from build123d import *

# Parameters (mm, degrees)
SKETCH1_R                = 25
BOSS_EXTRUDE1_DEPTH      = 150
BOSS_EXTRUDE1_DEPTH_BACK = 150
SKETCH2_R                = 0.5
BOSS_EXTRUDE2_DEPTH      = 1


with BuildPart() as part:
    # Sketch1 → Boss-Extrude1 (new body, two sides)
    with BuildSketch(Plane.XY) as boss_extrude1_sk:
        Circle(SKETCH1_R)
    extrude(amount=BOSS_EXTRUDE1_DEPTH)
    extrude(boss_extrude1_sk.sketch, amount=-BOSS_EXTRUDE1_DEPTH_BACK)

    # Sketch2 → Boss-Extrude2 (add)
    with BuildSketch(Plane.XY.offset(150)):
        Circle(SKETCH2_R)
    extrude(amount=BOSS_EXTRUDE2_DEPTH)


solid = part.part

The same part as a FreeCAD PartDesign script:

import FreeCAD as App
import Part
import Sketcher

V = App.Vector

doc = App.newDocument("Part")
body = doc.addObject("PartDesign::Body", "Body")

# Sketch on XY plane
sketch1 = body.newObject("Sketcher::SketchObject", "Sketch")
sketch1.AttachmentSupport = (doc.getObject("XY_Plane"), [""])
sketch1.MapMode = "FlatFace"
sketch1.addGeometry(Part.Circle(V(0, 0, 0), V(0, 0, 1), 25), False)
sketch1.addConstraint([
    Sketcher.Constraint("Coincident", 0, 3, -1, 1),
    Sketcher.Constraint("Diameter", 0, 50.0),
])
pad1 = body.newObject("PartDesign::Pad", "Pad")
pad1.Profile = sketch1
pad1.Type = "TwoLengths"
pad1.Length = 150
pad1.Length2 = 150

# Sketch on XY plane
sketch2 = body.newObject("Sketcher::SketchObject", "Sketch001")
sketch2.AttachmentSupport = (doc.getObject("XY_Plane"), [""])
sketch2.MapMode = "FlatFace"
sketch2.AttachmentOffset = App.Placement(V(0, 0, 150), App.Rotation())
sketch2.addGeometry(Part.Circle(V(0, 0, 0), V(0, 0, 1), 0.5), False)
sketch2.addConstraint([
    Sketcher.Constraint("Coincident", 0, 3, -1, 1),
    Sketcher.Constraint("Diameter", 0, 1.0),
])
pad2 = body.newObject("PartDesign::Pad", "Pad001")
pad2.Profile = sketch2
pad2.Length = 1

doc.recompute()
